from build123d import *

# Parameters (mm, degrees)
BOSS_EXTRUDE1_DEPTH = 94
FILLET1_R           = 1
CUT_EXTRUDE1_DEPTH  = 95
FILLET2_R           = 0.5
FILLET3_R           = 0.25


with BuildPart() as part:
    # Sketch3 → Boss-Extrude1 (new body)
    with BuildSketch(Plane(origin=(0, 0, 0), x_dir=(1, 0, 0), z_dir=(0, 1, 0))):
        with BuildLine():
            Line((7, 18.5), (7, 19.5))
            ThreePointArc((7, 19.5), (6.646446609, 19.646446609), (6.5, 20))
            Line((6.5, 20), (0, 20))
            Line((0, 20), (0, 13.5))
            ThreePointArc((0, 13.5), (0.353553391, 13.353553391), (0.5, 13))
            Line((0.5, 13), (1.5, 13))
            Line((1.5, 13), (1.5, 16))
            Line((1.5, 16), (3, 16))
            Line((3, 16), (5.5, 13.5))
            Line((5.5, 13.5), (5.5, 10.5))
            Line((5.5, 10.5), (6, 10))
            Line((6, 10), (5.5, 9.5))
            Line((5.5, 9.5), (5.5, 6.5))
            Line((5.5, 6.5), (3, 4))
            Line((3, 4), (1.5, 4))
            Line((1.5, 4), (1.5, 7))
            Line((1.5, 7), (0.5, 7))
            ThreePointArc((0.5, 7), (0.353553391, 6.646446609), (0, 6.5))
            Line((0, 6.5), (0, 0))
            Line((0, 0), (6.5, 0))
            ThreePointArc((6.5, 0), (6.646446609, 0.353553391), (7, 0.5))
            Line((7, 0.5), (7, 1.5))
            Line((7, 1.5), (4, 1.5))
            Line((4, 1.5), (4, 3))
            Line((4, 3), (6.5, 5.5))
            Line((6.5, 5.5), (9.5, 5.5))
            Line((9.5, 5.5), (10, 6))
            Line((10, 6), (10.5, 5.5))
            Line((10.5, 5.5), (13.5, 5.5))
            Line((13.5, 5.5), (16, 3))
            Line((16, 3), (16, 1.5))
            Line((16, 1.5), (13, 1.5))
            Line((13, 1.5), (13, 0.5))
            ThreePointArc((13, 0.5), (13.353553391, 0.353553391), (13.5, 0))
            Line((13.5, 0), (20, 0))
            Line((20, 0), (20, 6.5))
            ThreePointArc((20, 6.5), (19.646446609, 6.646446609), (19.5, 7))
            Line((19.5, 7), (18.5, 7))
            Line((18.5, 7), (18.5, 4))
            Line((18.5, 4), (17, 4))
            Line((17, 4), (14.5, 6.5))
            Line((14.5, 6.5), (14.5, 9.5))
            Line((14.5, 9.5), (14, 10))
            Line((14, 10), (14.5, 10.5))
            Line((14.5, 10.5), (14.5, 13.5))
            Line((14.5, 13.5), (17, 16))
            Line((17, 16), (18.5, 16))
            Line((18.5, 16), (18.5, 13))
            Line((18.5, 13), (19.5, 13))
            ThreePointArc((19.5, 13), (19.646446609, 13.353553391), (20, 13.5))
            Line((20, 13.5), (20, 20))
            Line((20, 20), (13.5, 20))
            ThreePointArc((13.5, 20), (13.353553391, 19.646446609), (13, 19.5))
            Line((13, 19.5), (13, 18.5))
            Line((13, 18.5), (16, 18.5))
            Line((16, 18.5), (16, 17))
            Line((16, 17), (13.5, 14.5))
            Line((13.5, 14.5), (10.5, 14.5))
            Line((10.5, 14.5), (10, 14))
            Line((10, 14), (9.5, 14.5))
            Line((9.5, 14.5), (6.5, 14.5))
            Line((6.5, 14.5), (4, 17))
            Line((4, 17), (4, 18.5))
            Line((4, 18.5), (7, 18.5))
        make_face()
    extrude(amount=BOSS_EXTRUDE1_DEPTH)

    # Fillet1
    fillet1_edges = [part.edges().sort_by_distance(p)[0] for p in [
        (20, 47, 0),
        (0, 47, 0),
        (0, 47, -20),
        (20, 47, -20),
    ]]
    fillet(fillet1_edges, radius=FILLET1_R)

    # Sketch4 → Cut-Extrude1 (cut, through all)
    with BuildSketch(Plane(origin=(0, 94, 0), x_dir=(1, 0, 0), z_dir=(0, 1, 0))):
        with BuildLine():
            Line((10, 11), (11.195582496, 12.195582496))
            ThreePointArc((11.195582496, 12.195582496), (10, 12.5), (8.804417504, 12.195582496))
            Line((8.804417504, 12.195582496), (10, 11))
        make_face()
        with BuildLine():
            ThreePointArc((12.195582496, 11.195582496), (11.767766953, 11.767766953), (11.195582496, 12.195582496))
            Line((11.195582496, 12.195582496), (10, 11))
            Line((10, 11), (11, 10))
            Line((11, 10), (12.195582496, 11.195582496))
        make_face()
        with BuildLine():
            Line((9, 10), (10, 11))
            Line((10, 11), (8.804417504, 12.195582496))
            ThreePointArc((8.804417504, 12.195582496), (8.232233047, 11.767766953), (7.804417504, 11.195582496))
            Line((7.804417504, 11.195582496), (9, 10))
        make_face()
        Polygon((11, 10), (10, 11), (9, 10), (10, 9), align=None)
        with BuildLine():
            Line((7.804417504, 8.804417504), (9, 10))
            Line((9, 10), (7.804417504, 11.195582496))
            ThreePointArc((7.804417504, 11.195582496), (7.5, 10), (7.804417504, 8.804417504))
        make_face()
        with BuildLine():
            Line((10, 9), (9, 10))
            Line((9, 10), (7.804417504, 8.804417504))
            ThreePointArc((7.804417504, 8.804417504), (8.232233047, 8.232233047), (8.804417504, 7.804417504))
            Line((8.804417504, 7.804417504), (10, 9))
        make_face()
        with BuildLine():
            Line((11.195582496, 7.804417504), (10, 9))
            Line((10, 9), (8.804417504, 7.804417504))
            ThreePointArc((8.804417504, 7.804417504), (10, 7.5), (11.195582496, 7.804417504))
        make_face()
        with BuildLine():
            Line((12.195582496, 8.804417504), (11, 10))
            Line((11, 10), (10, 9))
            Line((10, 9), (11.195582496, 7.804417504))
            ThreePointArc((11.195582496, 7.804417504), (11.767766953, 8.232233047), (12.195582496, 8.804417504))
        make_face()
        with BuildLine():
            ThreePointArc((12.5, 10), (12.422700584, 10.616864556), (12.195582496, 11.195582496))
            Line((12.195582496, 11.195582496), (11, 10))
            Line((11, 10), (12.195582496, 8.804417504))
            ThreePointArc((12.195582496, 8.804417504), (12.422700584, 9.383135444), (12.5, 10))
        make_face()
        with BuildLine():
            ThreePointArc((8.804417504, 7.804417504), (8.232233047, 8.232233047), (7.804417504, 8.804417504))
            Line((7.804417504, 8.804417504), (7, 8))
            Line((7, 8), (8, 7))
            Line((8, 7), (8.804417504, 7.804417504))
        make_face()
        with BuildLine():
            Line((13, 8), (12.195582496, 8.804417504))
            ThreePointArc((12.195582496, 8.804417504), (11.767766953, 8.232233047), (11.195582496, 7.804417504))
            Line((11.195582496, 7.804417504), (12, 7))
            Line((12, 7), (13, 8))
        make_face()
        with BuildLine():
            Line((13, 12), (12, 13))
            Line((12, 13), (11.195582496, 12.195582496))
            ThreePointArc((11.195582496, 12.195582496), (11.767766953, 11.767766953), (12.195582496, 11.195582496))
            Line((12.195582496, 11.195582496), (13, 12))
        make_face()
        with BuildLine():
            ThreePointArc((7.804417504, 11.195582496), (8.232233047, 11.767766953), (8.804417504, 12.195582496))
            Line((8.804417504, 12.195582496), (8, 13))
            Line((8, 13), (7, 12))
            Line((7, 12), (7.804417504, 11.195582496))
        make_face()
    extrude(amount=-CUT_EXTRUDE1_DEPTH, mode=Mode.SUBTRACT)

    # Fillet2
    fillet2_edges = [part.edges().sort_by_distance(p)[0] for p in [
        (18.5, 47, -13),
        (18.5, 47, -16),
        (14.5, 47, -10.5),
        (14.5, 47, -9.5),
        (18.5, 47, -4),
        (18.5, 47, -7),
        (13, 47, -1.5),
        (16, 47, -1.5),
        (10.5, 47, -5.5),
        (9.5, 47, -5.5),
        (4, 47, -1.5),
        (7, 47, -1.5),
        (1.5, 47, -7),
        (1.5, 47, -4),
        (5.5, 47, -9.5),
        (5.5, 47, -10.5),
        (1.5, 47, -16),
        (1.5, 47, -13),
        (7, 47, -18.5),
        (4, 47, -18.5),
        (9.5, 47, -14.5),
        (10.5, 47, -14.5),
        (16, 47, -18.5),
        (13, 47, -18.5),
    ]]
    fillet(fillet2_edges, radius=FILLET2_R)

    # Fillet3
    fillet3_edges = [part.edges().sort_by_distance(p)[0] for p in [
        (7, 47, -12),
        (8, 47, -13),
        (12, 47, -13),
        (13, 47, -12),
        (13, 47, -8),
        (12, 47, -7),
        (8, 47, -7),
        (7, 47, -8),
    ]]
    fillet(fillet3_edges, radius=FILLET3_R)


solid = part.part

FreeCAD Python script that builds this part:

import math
import FreeCAD as App
import Part
import Sketcher
from FreeCAD import Vector


def edges_at(feature, points):
    """Names of the edges that pass closest to the given points."""
    edges = feature.Shape.Edges
    near = lambda p: min(range(len(edges)), key=lambda i: edges[i].distToShape(Part.Vertex(*p))[0])
    return sorted({f"Edge{near(p) + 1}" for p in points})

doc = App.newDocument("Part")
body = doc.addObject("PartDesign::Body", "Body")

# Sketch on XZ plane
sketch1 = body.newObject("Sketcher::SketchObject", "Sketch")
sketch1.AttachmentSupport = (doc.getObject("XZ_Plane"), [""])
sketch1.MapMode = "FlatFace"
sketch1.addGeometry([
    Part.LineSegment(Vector(7, -18.5, 0), Vector(7, -19.5, 0)),  # 0
    Part.ArcOfCircle(Part.Circle(Vector(7, -20, 0), Vector(0, 0, 1), 0.5), math.radians(90), math.radians(180)),  # 1
    Part.LineSegment(Vector(6.5, -20, 0), Vector(0, -20, 0)),  # 2
    Part.LineSegment(Vector(0, -20, 0), Vector(0, -13.5, 0)),  # 3
    Part.ArcOfCircle(Part.Circle(Vector(0, -13, 0), Vector(0, 0, 1), 0.5), math.radians(-90), math.radians(0)),  # 4
    Part.LineSegment(Vector(0.5, -13, 0), Vector(1.5, -13, 0)),  # 5
    Part.LineSegment(Vector(1.5, -13, 0), Vector(1.5, -16, 0)),  # 6
    Part.LineSegment(Vector(1.5, -16, 0), Vector(3, -16, 0)),  # 7
    Part.LineSegment(Vector(3, -16, 0), Vector(5.5, -13.5, 0)),  # 8
    Part.LineSegment(Vector(5.5, -13.5, 0), Vector(5.5, -10.5, 0)),  # 9
    Part.LineSegment(Vector(5.5, -10.5, 0), Vector(6, -10, 0)),  # 10
    Part.LineSegment(Vector(6, -10, 0), Vector(5.5, -9.5, 0)),  # 11
    Part.LineSegment(Vector(5.5, -9.5, 0), Vector(5.5, -6.5, 0)),  # 12
    Part.LineSegment(Vector(5.5, -6.5, 0), Vector(3, -4, 0)),  # 13
    Part.LineSegment(Vector(3, -4, 0), Vector(1.5, -4, 0)),  # 14
    Part.LineSegment(Vector(1.5, -4, 0), Vector(1.5, -7, 0)),  # 15
    Part.LineSegment(Vector(1.5, -7, 0), Vector(0.5, -7, 0)),  # 16
    Part.ArcOfCircle(Part.Circle(Vector(0, -7, 0), Vector(0, 0, 1), 0.5), math.radians(0), math.radians(90)),  # 17
    Part.LineSegment(Vector(0, -6.5, 0), Vector(0, 0, 0)),  # 18
    Part.LineSegment(Vector(0, 0, 0), Vector(6.5, 0, 0)),  # 19
    Part.ArcOfCircle(Part.Circle(Vector(7, 0, 0), Vector(0, 0, 1), 0.5), math.radians(180), math.radians(270)),  # 20
    Part.LineSegment(Vector(7, -0.5, 0), Vector(7, -1.5, 0)),  # 21
    Part.LineSegment(Vector(7, -1.5, 0), Vector(4, -1.5, 0)),  # 22
    Part.LineSegment(Vector(4, -1.5, 0), Vector(4, -3, 0)),  # 23
    Part.LineSegment(Vector(4, -3, 0), Vector(6.5, -5.5, 0)),  # 24
    Part.LineSegment(Vector(6.5, -5.5, 0), Vector(9.5, -5.5, 0)),  # 25
    Part.LineSegment(Vector(9.5, -5.5, 0), Vector(10, -6, 0)),  # 26
    Part.LineSegment(Vector(10, -6, 0), Vector(10.5, -5.5, 0)),  # 27
    Part.LineSegment(Vector(10.5, -5.5, 0), Vector(13.5, -5.5, 0)),  # 28
    Part.LineSegment(Vector(13.5, -5.5, 0), Vector(16, -3, 0)),  # 29
    Part.LineSegment(Vector(16, -3, 0), Vector(16, -1.5, 0)),  # 30
    Part.LineSegment(Vector(16, -1.5, 0), Vector(13, -1.5, 0)),  # 31
    Part.LineSegment(Vector(13, -1.5, 0), Vector(13, -0.5, 0)),  # 32
    Part.ArcOfCircle(Part.Circle(Vector(13, 0, 0), Vector(0, 0, 1), 0.5), math.radians(-90), math.radians(0)),  # 33
    Part.LineSegment(Vector(13.5, 0, 0), Vector(20, 0, 0)),  # 34
    Part.LineSegment(Vector(20, 0, 0), Vector(20, -6.5, 0)),  # 35
    Part.ArcOfCircle(Part.Circle(Vector(20, -7, 0), Vector(0, 0, 1), 0.5), math.radians(90), math.radians(180)),  # 36
    Part.LineSegment(Vector(19.5, -7, 0), Vector(18.5, -7, 0)),  # 37
    Part.LineSegment(Vector(18.5, -7, 0), Vector(18.5, -4, 0)),  # 38
    Part.LineSegment(Vector(18.5, -4, 0), Vector(17, -4, 0)),  # 39
    Part.LineSegment(Vector(17, -4, 0), Vector(14.5, -6.5, 0)),  # 40
    Part.LineSegment(Vector(14.5, -6.5, 0), Vector(14.5, -9.5, 0)),  # 41
    Part.LineSegment(Vector(14.5, -9.5, 0), Vector(14, -10, 0)),  # 42
    Part.LineSegment(Vector(14, -10, 0), Vector(14.5, -10.5, 0)),  # 43
    Part.LineSegment(Vector(14.5, -10.5, 0), Vector(14.5, -13.5, 0)),  # 44
    Part.LineSegment(Vector(14.5, -13.5, 0), Vector(17, -16, 0)),  # 45
    Part.LineSegment(Vector(17, -16, 0), Vector(18.5, -16, 0)),  # 46
    Part.LineSegment(Vector(18.5, -16, 0), Vector(18.5, -13, 0)),  # 47
    Part.LineSegment(Vector(18.5, -13, 0), Vector(19.5, -13, 0)),  # 48
    Part.ArcOfCircle(Part.Circle(Vector(20, -13, 0), Vector(0, 0, 1), 0.5), math.radians(180), math.radians(270)),  # 49
    Part.LineSegment(Vector(20, -13.5, 0), Vector(20, -20, 0)),  # 50
    Part.LineSegment(Vector(20, -20, 0), Vector(13.5, -20, 0)),  # 51
    Part.ArcOfCircle(Part.Circle(Vector(13, -20, 0), Vector(0, 0, 1), 0.5), math.radians(0), math.radians(90)),  # 52
    Part.LineSegment(Vector(13, -19.5, 0), Vector(13, -18.5, 0)),  # 53
    Part.LineSegment(Vector(13, -18.5, 0), Vector(16, -18.5, 0)),  # 54
    Part.LineSegment(Vector(16, -18.5, 0), Vector(16, -17, 0)),  # 55
    Part.LineSegment(Vector(16, -17, 0), Vector(13.5, -14.5, 0)),  # 56
    Part.LineSegment(Vector(13.5, -14.5, 0), Vector(10.5, -14.5, 0)),  # 57
    Part.LineSegment(Vector(10.5, -14.5, 0), Vector(10, -14, 0)),  # 58
    Part.LineSegment(Vector(10, -14, 0), Vector(9.5, -14.5, 0)),  # 59
    Part.LineSegment(Vector(9.5, -14.5, 0), Vector(6.5, -14.5, 0)),  # 60
    Part.LineSegment(Vector(6.5, -14.5, 0), Vector(4, -17, 0)),  # 61
    Part.LineSegment(Vector(4, -17, 0), Vector(4, -18.5, 0)),  # 62
    Part.LineSegment(Vector(4, -18.5, 0), Vector(7, -18.5, 0)),  # 63
], False)
sketch1.addConstraint([
    Sketcher.Constraint("Coincident", 0, 2, 1, 1),
    Sketcher.Constraint("Coincident", 1, 2, 2, 1),
    Sketcher.Constraint("Coincident", 2, 2, 3, 1),
    Sketcher.Constraint("Coincident", 3, 2, 4, 1),
    Sketcher.Constraint("Coincident", 4, 2, 5, 1),
    Sketcher.Constraint("Coincident", 5, 2, 6, 1),
    Sketcher.Constraint("Coincident", 6, 2, 7, 1),
    Sketcher.Constraint("Coincident", 7, 2, 8, 1),
    Sketcher.Constraint("Coincident", 8, 2, 9, 1),
    Sketcher.Constraint("Coincident", 9, 2, 10, 1),
    Sketcher.Constraint("Coincident", 10, 2, 11, 1),
    Sketcher.Constraint("Coincident", 11, 2, 12, 1),
    Sketcher.Constraint("Coincident", 12, 2, 13, 1),
    Sketcher.Constraint("Coincident", 13, 2, 14, 1),
    Sketcher.Constraint("Coincident", 14, 2, 15, 1),
    Sketcher.Constraint("Coincident", 15, 2, 16, 1),
    Sketcher.Constraint("Coincident", 16, 2, 17, 1),
    Sketcher.Constraint("Coincident", 17, 2, 18, 1),
    Sketcher.Constraint("Coincident", 18, 2, 19, 1),
    Sketcher.Constraint("Coincident", 19, 2, 20, 1),
    Sketcher.Constraint("Coincident", 20, 2, 21, 1),
    Sketcher.Constraint("Coincident", 21, 2, 22, 1),
    Sketcher.Constraint("Coincident", 22, 2, 23, 1),
    Sketcher.Constraint("Coincident", 23, 2, 24, 1),
    Sketcher.Constraint("Coincident", 24, 2, 25, 1),
    Sketcher.Constraint("Coincident", 25, 2, 26, 1),
    Sketcher.Constraint("Coincident", 26, 2, 27, 1),
    Sketcher.Constraint("Coincident", 27, 2, 28, 1),
    Sketcher.Constraint("Coincident", 28, 2, 29, 1),
    Sketcher.Constraint("Coincident", 29, 2, 30, 1),
    Sketcher.Constraint("Coincident", 30, 2, 31, 1),
    Sketcher.Constraint("Coincident", 31, 2, 32, 1),
    Sketcher.Constraint("Coincident", 32, 2, 33, 1),
    Sketcher.Constraint("Coincident", 33, 2, 34, 1),
    Sketcher.Constraint("Coincident", 34, 2, 35, 1),
    Sketcher.Constraint("Coincident", 35, 2, 36, 1),
    Sketcher.Constraint("Coincident", 36, 2, 37, 1),
    Sketcher.Constraint("Coincident", 37, 2, 38, 1),
    Sketcher.Constraint("Coincident", 38, 2, 39, 1),
    Sketcher.Constraint("Coincident", 39, 2, 40, 1),
    Sketcher.Constraint("Coincident", 40, 2, 41, 1),
    Sketcher.Constraint("Coincident", 41, 2, 42, 1),
    Sketcher.Constraint("Coincident", 42, 2, 43, 1),
    Sketcher.Constraint("Coincident", 43, 2, 44, 1),
    Sketcher.Constraint("Coincident", 44, 2, 45, 1),
    Sketcher.Constraint("Coincident", 45, 2, 46, 1),
    Sketcher.Constraint("Coincident", 46, 2, 47, 1),
    Sketcher.Constraint("Coincident", 47, 2, 48, 1),
    Sketcher.Constraint("Coincident", 48, 2, 49, 1),
    Sketcher.Constraint("Coincident", 49, 2, 50, 1),
    Sketcher.Constraint("Coincident", 50, 2, 51, 1),
    Sketcher.Constraint("Coincident", 51, 2, 52, 1),
    Sketcher.Constraint("Coincident", 52, 2, 53, 1),
    Sketcher.Constraint("Coincident", 53, 2, 54, 1),
    Sketcher.Constraint("Coincident", 54, 2, 55, 1),
    Sketcher.Constraint("Coincident", 55, 2, 56, 1),
    Sketcher.Constraint("Coincident", 56, 2, 57, 1),
    Sketcher.Constraint("Coincident", 57, 2, 58, 1),
    Sketcher.Constraint("Coincident", 58, 2, 59, 1),
    Sketcher.Constraint("Coincident", 59, 2, 60, 1),
    Sketcher.Constraint("Coincident", 60, 2, 61, 1),
    Sketcher.Constraint("Coincident", 61, 2, 62, 1),
    Sketcher.Constraint("Coincident", 62, 2, 63, 1),
    Sketcher.Constraint("Coincident", 63, 2, 0, 1),
    Sketcher.Constraint("Vertical", 0),
    Sketcher.Constraint("Horizontal", 2),
    Sketcher.Constraint("Vertical", 3),
    Sketcher.Constraint("Horizontal", 5),
    Sketcher.Constraint("Vertical", 6),
    Sketcher.Constraint("Horizontal", 7),
    Sketcher.Constraint("Vertical", 9),
    Sketcher.Constraint("Vertical", 12),
    Sketcher.Constraint("Horizontal", 14),
    Sketcher.Constraint("Vertical", 15),
    Sketcher.Constraint("Horizontal", 16),
    Sketcher.Constraint("Vertical", 18),
    Sketcher.Constraint("Horizontal", 19),
    Sketcher.Constraint("Vertical", 21),
    Sketcher.Constraint("Horizontal", 22),
    Sketcher.Constraint("Vertical", 23),
    Sketcher.Constraint("Horizontal", 25),
    Sketcher.Constraint("Horizontal", 28),
    Sketcher.Constraint("Vertical", 30),
    Sketcher.Constraint("Horizontal", 31),
    Sketcher.Constraint("Vertical", 32),
    Sketcher.Constraint("Horizontal", 34),
    Sketcher.Constraint("Vertical", 35),
    Sketcher.Constraint("Horizontal", 37),
    Sketcher.Constraint("Vertical", 38),
    Sketcher.Constraint("Horizontal", 39),
    Sketcher.Constraint("Vertical", 41),
    Sketcher.Constraint("Vertical", 44),
    Sketcher.Constraint("Horizontal", 46),
    Sketcher.Constraint("Vertical", 47),
    Sketcher.Constraint("Horizontal", 48),
    Sketcher.Constraint("Vertical", 50),
    Sketcher.Constraint("Horizontal", 51),
    Sketcher.Constraint("Vertical", 53),
    Sketcher.Constraint("Horizontal", 54),
    Sketcher.Constraint("Vertical", 55),
    Sketcher.Constraint("Horizontal", 57),
    Sketcher.Constraint("Horizontal", 60),
    Sketcher.Constraint("Vertical", 62),
    Sketcher.Constraint("Horizontal", 63),
    Sketcher.Constraint("Coincident", 18, 2, -1, 1),
    Sketcher.Constraint("Equal", 1, 4),
    Sketcher.Constraint("Equal", 4, 17),
    Sketcher.Constraint("Equal", 17, 20),
    Sketcher.Constraint("Equal", 20, 33),
    Sketcher.Constraint("Equal", 33, 36),
    Sketcher.Constraint("Equal", 36, 49),
    Sketcher.Constraint("Equal", 49, 52),
    Sketcher.Constraint("PointOnObject", 4, 3, -2),
    Sketcher.Constraint("PointOnObject", 17, 3, -2),
    Sketcher.Constraint("PointOnObject", 20, 3, -1),
    Sketcher.Constraint("PointOnObject", 33, 3, -1),
    Sketcher.Constraint("PointOnObject", 2, 2, -2),
    Sketcher.Constraint("PointOnObject", 33, 2, -1),
    Sketcher.Constraint("Parallel", 8, 10),
    Sketcher.Constraint("Perpendicular", 10, 11),
    Sketcher.Constraint("Parallel", 11, 13),
    Sketcher.Constraint("Parallel", 13, 24),
    Sketcher.Constraint("Parallel", 24, 26),
    Sketcher.Constraint("Perpendicular", 26, 27),
    Sketcher.Constraint("Parallel", 27, 29),
    Sketcher.Constraint("Parallel", 29, 40),
    Sketcher.Constraint("Parallel", 40, 42),
    Sketcher.Constraint("Perpendicular", 42, 43),
    Sketcher.Constraint("Parallel", 43, 45),
    Sketcher.Constraint("Parallel", 45, 56),
    Sketcher.Constraint("Parallel", 56, 58),
    Sketcher.Constraint("Perpendicular", 58, 59),
    Sketcher.Constraint("Parallel", 59, 61),
    Sketcher.Constraint("Horizontal", 17, 3, 36, 3),
    Sketcher.Constraint("Horizontal", 4, 3, 49, 3),
    Sketcher.Constraint("Horizontal", 1, 3, 52, 3),
    Sketcher.Constraint("Horizontal", 52, 3, 1, 2),
    Sketcher.Constraint("Horizontal", 49, 3, 4, 2),
    Sketcher.Constraint("Horizontal", 3, 2, 8, 2),
    Sketcher.Constraint("Horizontal", 36, 3, 15, 2),
    Sketcher.Constraint("Horizontal", 12, 2, 17, 2),
    Sketcher.Constraint("Horizontal", 25, 2, 27, 2),
    Sketcher.Constraint("Horizontal", 23, 2, 29, 2),
    Sketcher.Constraint("Horizontal", 22, 2, 30, 2),
    Sketcher.Constraint("Horizontal", 16, 2, 36, 2),
    Sketcher.Constraint("Horizontal", 14, 2, 38, 2),
    Sketcher.Constraint("Horizontal", 35, 2, 40, 2),
    Sketcher.Constraint("Horizontal", 11, 2, 41, 2),
    Sketcher.Constraint("Horizontal", 10, 2, 42, 2),
    Sketcher.Constraint("Horizontal", 9, 2, 43, 2),
    Sketcher.Constraint("Horizontal", 8, 2, 44, 2),
    Sketcher.Constraint("Horizontal", 7, 2, 45, 2),
    Sketcher.Constraint("Horizontal", 5, 2, 47, 2),
    Sketcher.Constraint("Horizontal", 2, 2, 50, 2),
    Sketcher.Constraint("Horizontal", 57, 2, 59, 2),
    Sketcher.Constraint("Horizontal", 55, 2, 61, 2),
    Sketcher.Constraint("Horizontal", 54, 2, 62, 2),
    Sketcher.Constraint("Vertical", 1, 3, 20, 3),
    Sketcher.Constraint("Vertical", 36, 3, 49, 3),
    Sketcher.Constraint("Vertical", 33, 3, 52, 3),
    Sketcher.Constraint("Vertical", 20, 3, 0, 2),
    Sketcher.Constraint("Vertical", 9, 2, 11, 2),
    Sketcher.Constraint("Vertical", 7, 2, 13, 2),
    Sketcher.Constraint("Vertical", 6, 2, 14, 2),
    Sketcher.Constraint("Vertical", 0, 2, 20, 2),
    Sketcher.Constraint("Vertical", 19, 2, 24, 2),
    Sketcher.Constraint("Vertical", 52, 3, 31, 2),
    Sketcher.Constraint("Vertical", 28, 2, 33, 2),
    Sketcher.Constraint("Vertical", 49, 3, 34, 2),
    Sketcher.Constraint("Vertical", 41, 2, 43, 2),
    Sketcher.Constraint("Vertical", 38, 2, 46, 2),
    Sketcher.Constraint("Vertical", 35, 2, 49, 2),
    Sketcher.Constraint("Vertical", 32, 2, 52, 2),
    Sketcher.Constraint("Vertical", 30, 2, 54, 2),
    Sketcher.Constraint("Vertical", 51, 2, 56, 2),
    Sketcher.Constraint("Vertical", 27, 2, 57, 2),
    Sketcher.Constraint("Vertical", 26, 2, 58, 2),
    Sketcher.Constraint("Vertical", 24, 2, 60, 2),
    Sketcher.Constraint("Equal", 22, 25),
    Sketcher.Constraint("Equal", 25, 28),
    Sketcher.Constraint("Equal", 19, 34),
    Sketcher.Constraint("Equal", 16, 37),
    Sketcher.Constraint("Equal", 14, 39),
    Sketcher.Constraint("Equal", 48, 0),
    Sketcher.Constraint("Equal", 51, 3),
    Sketcher.Constraint("Equal", 63, 6),
    Sketcher.Constraint("Equal", 6, 9),
    Sketcher.Constraint("Equal", 9, 12),
    Sketcher.Constraint("Equal", 3, 18),
    Sketcher.Constraint("Equal", 0, 21),
    Sketcher.Constraint("Equal", 46, 23),
    Sketcher.Constraint("Equal", 30, 55),
    Sketcher.Constraint("Equal", 11, 26),
    Sketcher.Constraint("Radius", 1, 0.5),
    Sketcher.Constraint("DistanceX", 5, 1, 5, 2, 1.0),
    Sketcher.Constraint("DistanceX", 22, 2, 22, 1, 3.0),
    Sketcher.Constraint("DistanceX", 2, 2, 2, 1, 6.5),
    Sketcher.Constraint("DistanceX", 7, 1, 7, 2, 1.5),
    Sketcher.Constraint("DistanceY", 1, 3, -1, 1, 20.0),
])
pad1 = body.newObject("PartDesign::Pad", "Pad")
pad1.Profile = sketch1
pad1.Length = 94
pad1.Reversed = True
doc.recompute()

fillet = body.newObject("PartDesign::Fillet", "Fillet")
fillet.Base = (pad1, edges_at(pad1, [
    (20, 47, 0),
    (0, 47, 0),
    (0, 47, -20),
    (20, 47, -20),
]))
fillet.Radius = 1

# Sketch on XZ plane
sketch2 = body.newObject("Sketcher::SketchObject", "Sketch001")
sketch2.AttachmentSupport = (doc.getObject("XZ_Plane"), [""])
sketch2.MapMode = "FlatFace"
sketch2.AttachmentOffset = App.Placement(Vector(0, 0, -94), App.Rotation())
sketch2.addGeometry([
    Part.ArcOfCircle(Part.Circle(Vector(10, -10, 0), Vector(0, 0, 1), 2.5), math.radians(-119), math.radians(-61)),  # 0
    Part.LineSegment(Vector(8.8, -12.2, 0), Vector(8, -13, 0)),  # 1
    Part.LineSegment(Vector(8, -13, 0), Vector(7, -12, 0)),  # 2
    Part.LineSegment(Vector(7, -12, 0), Vector(7.8, -11.2, 0)),  # 3
    Part.ArcOfCircle(Part.Circle(Vector(10, -10, 0), Vector(0, 0, 1), 2.5), math.radians(151), math.radians(209)),  # 4
    Part.LineSegment(Vector(7.8, -8.8, 0), Vector(7, -8, 0)),  # 5
    Part.LineSegment(Vector(7, -8, 0), Vector(8, -7, 0)),  # 6
    Part.LineSegment(Vector(8, -7, 0), Vector(8.8, -7.8, 0)),  # 7
    Part.ArcOfCircle(Part.Circle(Vector(10, -10, 0), Vector(0, 0, 1), 2.5), math.radians(61), math.radians(119)),  # 8
    Part.LineSegment(Vector(11.2, -7.8, 0), Vector(12, -7, 0)),  # 9
    Part.LineSegment(Vector(12, -7, 0), Vector(13, -8, 0)),  # 10
    Part.LineSegment(Vector(13, -8, 0), Vector(12.2, -8.8, 0)),  # 11
    Part.ArcOfCircle(Part.Circle(Vector(10, -10, 0), Vector(0, 0, 1), 2.5), math.radians(0), math.radians(29)),  # 12
    Part.ArcOfCircle(Part.Circle(Vector(10, -10, 0), Vector(0, 0, 1), 2.5), math.radians(-29), math.radians(0)),  # 13
    Part.LineSegment(Vector(12.2, -11.2, 0), Vector(13, -12, 0)),  # 14
    Part.LineSegment(Vector(13, -12, 0), Vector(12, -13, 0)),  # 15
    Part.LineSegment(Vector(12, -13, 0), Vector(11.2, -12.2, 0)),  # 16
], False)
sketch2.addConstraint([
    Sketcher.Constraint("Coincident", 0, 1, 1, 1),
    Sketcher.Constraint("Coincident", 1, 2, 2, 1),
    Sketcher.Constraint("Coincident", 2, 2, 3, 1),
    Sketcher.Constraint("Coincident", 3, 2, 4, 2),
    Sketcher.Constraint("Coincident", 4, 1, 5, 1),
    Sketcher.Constraint("Coincident", 5, 2, 6, 1),
    Sketcher.Constraint("Coincident", 6, 2, 7, 1),
    Sketcher.Constraint("Coincident", 7, 2, 8, 2),
    Sketcher.Constraint("Coincident", 8, 1, 9, 1),
    Sketcher.Constraint("Coincident", 9, 2, 10, 1),
    Sketcher.Constraint("Coincident", 10, 2, 11, 1),
    Sketcher.Constraint("Coincident", 11, 2, 12, 2),
    Sketcher.Constraint("Tangent", 12, 1, 13, 2),
    Sketcher.Constraint("Coincident", 13, 1, 14, 1),
    Sketcher.Constraint("Coincident", 14, 2, 15, 1),
    Sketcher.Constraint("Coincident", 15, 2, 16, 1),
    Sketcher.Constraint("Coincident", 16, 2, 0, 2),
    Sketcher.Constraint("Coincident", 4, 3, 0, 3),
    Sketcher.Constraint("Coincident", 8, 3, 0, 3),
    Sketcher.Constraint("Coincident", 12, 3, 0, 3),
    Sketcher.Constraint("Equal", 0, 4),
    Sketcher.Constraint("Equal", 4, 8),
    Sketcher.Constraint("Equal", 8, 12),
    Sketcher.Constraint("Equal", 12, 13),
    Sketcher.Constraint("Perpendicular", 1, 2),
    Sketcher.Constraint("Perpendicular", 2, 3),
    Sketcher.Constraint("Perpendicular", 3, 5),
    Sketcher.Constraint("Perpendicular", 5, 6),
    Sketcher.Constraint("Perpendicular", 6, 7),
    Sketcher.Constraint("Perpendicular", 7, 9),
    Sketcher.Constraint("Perpendicular", 9, 10),
    Sketcher.Constraint("Perpendicular", 10, 11),
    Sketcher.Constraint("Perpendicular", 11, 14),
    Sketcher.Constraint("Perpendicular", 14, 15),
    Sketcher.Constraint("Perpendicular", 15, 16),
    Sketcher.Constraint("Horizontal", 7, 2, 8, 1),
    Sketcher.Constraint("Horizontal", 6, 2, 9, 2),
    Sketcher.Constraint("Horizontal", 5, 2, 10, 2),
    Sketcher.Constraint("Horizontal", 4, 1, 11, 2),
    Sketcher.Constraint("Horizontal", 13, 3, 12, 1),
    Sketcher.Constraint("Horizontal", 3, 2, 13, 1),
    Sketcher.Constraint("Horizontal", 2, 2, 14, 2),
    Sketcher.Constraint("Horizontal", 1, 2, 15, 2),
    Sketcher.Constraint("Vertical", 3, 2, 4, 1),
    Sketcher.Constraint("Vertical", 2, 2, 5, 2),
    Sketcher.Constraint("Vertical", 1, 2, 6, 2),
    Sketcher.Constraint("Equal", 1, 3),
    Sketcher.Constraint("Radius", 0, 2.5),
    Sketcher.Constraint("DistanceX", -1, 1, 0, 3, 10.0),
    Sketcher.Constraint("DistanceY", 0, 3, -1, 1, 10.0),
    Sketcher.Constraint("DistanceX", -1, 1, 1, 2, 8.0),
    Sketcher.Constraint("DistanceY", 1, 2, -1, 1, 13.0),
])
pocket1 = body.newObject("PartDesign::Pocket", "Pocket")
pocket1.Profile = sketch2
pocket1.Type = "ThroughAll"
pocket1.Reversed = True
doc.recompute()

fillet2 = body.newObject("PartDesign::Fillet", "Fillet001")
fillet2.Base = (pocket1, edges_at(pocket1, [
    (18.5, 47, -13),
    (18.5, 47, -16),
    (14.5, 47, -10.5),
    (14.5, 47, -9.5),
    (18.5, 47, -4),
    (18.5, 47, -7),
    (13, 47, -1.5),
    (16, 47, -1.5),
    (10.5, 47, -5.5),
    (9.5, 47, -5.5),
    (4, 47, -1.5),
    (7, 47, -1.5),
    (1.5, 47, -7),
    (1.5, 47, -4),
    (5.5, 47, -9.5),
    (5.5, 47, -10.5),
    (1.5, 47, -16),
    (1.5, 47, -13),
    (7, 47, -18.5),
    (4, 47, -18.5),
    (9.5, 47, -14.5),
    (10.5, 47, -14.5),
    (16, 47, -18.5),
    (13, 47, -18.5),
]))
fillet2.Radius = 0.5
doc.recompute()

fillet3 = body.newObject("PartDesign::Fillet", "Fillet002")
fillet3.Base = (fillet2, edges_at(fillet2, [
    (7, 47, -12),
    (8, 47, -13),
    (12, 47, -13),
    (13, 47, -12),
    (13, 47, -8),
    (12, 47, -7),
    (8, 47, -7),
    (7, 47, -8),
]))
fillet3.Radius = 0.25

doc.recompute()
